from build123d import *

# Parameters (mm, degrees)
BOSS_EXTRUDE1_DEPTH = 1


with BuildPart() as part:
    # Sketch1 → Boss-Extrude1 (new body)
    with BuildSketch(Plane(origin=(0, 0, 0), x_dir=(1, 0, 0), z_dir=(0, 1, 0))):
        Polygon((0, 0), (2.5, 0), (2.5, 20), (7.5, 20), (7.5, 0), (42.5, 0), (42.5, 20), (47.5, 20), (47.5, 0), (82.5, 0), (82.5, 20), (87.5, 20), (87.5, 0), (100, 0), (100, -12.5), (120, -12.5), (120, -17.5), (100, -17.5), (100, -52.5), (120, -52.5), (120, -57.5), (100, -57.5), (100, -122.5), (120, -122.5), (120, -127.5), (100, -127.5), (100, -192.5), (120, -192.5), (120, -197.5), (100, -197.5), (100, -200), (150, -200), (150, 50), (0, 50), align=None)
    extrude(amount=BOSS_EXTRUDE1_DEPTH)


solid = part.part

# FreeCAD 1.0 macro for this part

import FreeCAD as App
import Part
import Sketcher

V = App.Vector


def add_polygon(sketch, points):
    """Adds a closed chain of lines whose ends are joined by coincident constraints."""
    first, n = sketch.GeometryCount, len(points)
    for a, b in zip(points, points[1:] + points[:1]):
        sketch.addGeometry(Part.LineSegment(App.Vector(*a, 0), App.Vector(*b, 0)), False)
    for i in range(n):
        sketch.addConstraint(Sketcher.Constraint("Coincident", first + i, 2, first + (i + 1) % n, 1))

doc = App.newDocument("Part")
params = doc.addObject("Spreadsheet::Sheet", "Params")
for row, (alias, value) in enumerate([
    ("sketch1_width", "5 mm"),
    ("sketch1_width2", "35 mm"),
    ("sketch1_width3", "20 mm"),
    ("sketch1_width4", "50 mm"),
    ("sketch1_width5", "150 mm"),
    ("pad1_length", "1 mm"),
], start=1):
    params.set(f"A{row}", alias)
    params.set(f"B{row}", "=" + value)
    params.setAlias(f"B{row}", alias)

body = doc.addObject("PartDesign::Body", "Body")

sketch1 = body.newObject("Sketcher::SketchObject", "Sketch")
sketch1.AttachmentSupport = (doc.getObject("XZ_Plane"), [""])
sketch1.MapMode = "FlatFace"
add_polygon(sketch1, [(0, 0), (2.5, 0), (2.5, -20), (7.5, -20), (7.5, 0), (42.5, 0), (42.5, -20), (47.5, -20), (47.5, 0), (82.5, 0), (82.5, -20), (87.5, -20), (87.5, 0), (100, 0), (100, 12.5), (120, 12.5), (120, 17.5), (100, 17.5), (100, 52.5), (120, 52.5), (120, 57.5), (100, 57.5), (100, 122.5), (120, 122.5), (120, 127.5), (100, 127.5), (100, 192.5), (120, 192.5), (120, 197.5), (100, 197.5), (100, 200), (150, 200), (150, -50), (0, -50)])
sketch1.addConstraint([
    Sketcher.Constraint("Horizontal", 0),
    Sketcher.Constraint("Vertical", 1),
    Sketcher.Constraint("Horizontal", 2),
    Sketcher.Constraint("Vertical", 3),
    Sketcher.Constraint("Horizontal", 4),
    Sketcher.Constraint("Vertical", 5),
    Sketcher.Constraint("Horizontal", 6),
    Sketcher.Constraint("Vertical", 7),
    Sketcher.Constraint("Horizontal", 8),
    Sketcher.Constraint("Vertical", 9),
    Sketcher.Constraint("Horizontal", 10),
    Sketcher.Constraint("Vertical", 11),
    Sketcher.Constraint("Horizontal", 12),
    Sketcher.Constraint("Vertical", 13),
    Sketcher.Constraint("Horizontal", 14),
    Sketcher.Constraint("Vertical", 15),
    Sketcher.Constraint("Horizontal", 16),
    Sketcher.Constraint("Vertical", 17),
    Sketcher.Constraint("Horizontal", 18),
    Sketcher.Constraint("Vertical", 19),
    Sketcher.Constraint("Horizontal", 20),
    Sketcher.Constraint("Vertical", 21),
    Sketcher.Constraint("Horizontal", 22),
    Sketcher.Constraint("Vertical", 23),
    Sketcher.Constraint("Horizontal", 24),
    Sketcher.Constraint("Vertical", 25),
    Sketcher.Constraint("Horizontal", 26),
    Sketcher.Constraint("Vertical", 27),
    Sketcher.Constraint("Horizontal", 28),
    Sketcher.Constraint("Vertical", 29),
    Sketcher.Constraint("Horizontal", 30),
    Sketcher.Constraint("Vertical", 31),
    Sketcher.Constraint("Horizontal", 32),
    Sketcher.Constraint("Vertical", 33),
    Sketcher.Constraint("Coincident", 33, 2, -1, 1),
    Sketcher.Constraint("PointOnObject", 3, 2, -1),
    Sketcher.Constraint("PointOnObject", 7, 2, -1),
    Sketcher.Constraint("PointOnObject", 11, 2, -1),
    Sketcher.Constraint("Horizontal", 2, 2, 5, 2),
    Sketcher.Constraint("Horizontal", 6, 2, 9, 2),
    Sketcher.Constraint("Vertical", 13, 2, 16, 2),
    Sketcher.Constraint("Vertical", 15, 2, 18, 2),
    Sketcher.Constraint("Vertical", 17, 2, 20, 2),
    Sketcher.Constraint("Vertical", 19, 2, 22, 2),
    Sketcher.Constraint("Vertical", 21, 2, 24, 2),
    Sketcher.Constraint("Vertical", 23, 2, 26, 2),
    Sketcher.Constraint("Vertical", 25, 2, 28, 2),
    Sketcher.Constraint("Equal", 2, 6),
    Sketcher.Constraint("Equal", 4, 8),
    Sketcher.Constraint("Equal", 6, 10),
    Sketcher.Constraint("Equal", 28, 1),
    Sketcher.Constraint("Equal", 12, 13),
    Sketcher.Constraint("Equal", 10, 15),
    Sketcher.Constraint("Equal", 8, 17),
    Sketcher.Constraint("Equal", 15, 19),
    Sketcher.Constraint("Equal", 19, 23),
    Sketcher.Constraint("Equal", 21, 25),
    Sketcher.Constraint("Equal", 23, 27),
    Sketcher.Constraint("Equal", 0, 29),
    Sketcher.Constraint("Equal", 30, 33),
    Sketcher.Constraint("DistanceX", 2, 1, 2, 2, 5.0),
    Sketcher.Constraint("DistanceX", 4, 1, 4, 2, 35.0),
    Sketcher.Constraint("DistanceX", 14, 1, 14, 2, 20.0),
    Sketcher.Constraint("DistanceX", 30, 1, 30, 2, 50.0),
    Sketcher.Constraint("DistanceX", 32, 2, 32, 1, 150.0),
    Sketcher.Constraint("DistanceY", 21, 1, 21, 2, 65.0),
    Sketcher.Constraint("DistanceX", 0, 1, 0, 2, 2.5),
])
sketch1.setExpression("Constraints[94]", "Params.sketch1_width")
sketch1.setExpression("Constraints[95]", "Params.sketch1_width2")
sketch1.setExpression("Constraints[96]", "Params.sketch1_width3")
sketch1.setExpression("Constraints[97]", "Params.sketch1_width4")
sketch1.setExpression("Constraints[98]", "Params.sketch1_width5")
pad1 = body.newObject("PartDesign::Pad", "Pad")
pad1.Profile = sketch1
pad1.setExpression("Length", "Params.pad1_length")
pad1.Reversed = True

doc.recompute()
